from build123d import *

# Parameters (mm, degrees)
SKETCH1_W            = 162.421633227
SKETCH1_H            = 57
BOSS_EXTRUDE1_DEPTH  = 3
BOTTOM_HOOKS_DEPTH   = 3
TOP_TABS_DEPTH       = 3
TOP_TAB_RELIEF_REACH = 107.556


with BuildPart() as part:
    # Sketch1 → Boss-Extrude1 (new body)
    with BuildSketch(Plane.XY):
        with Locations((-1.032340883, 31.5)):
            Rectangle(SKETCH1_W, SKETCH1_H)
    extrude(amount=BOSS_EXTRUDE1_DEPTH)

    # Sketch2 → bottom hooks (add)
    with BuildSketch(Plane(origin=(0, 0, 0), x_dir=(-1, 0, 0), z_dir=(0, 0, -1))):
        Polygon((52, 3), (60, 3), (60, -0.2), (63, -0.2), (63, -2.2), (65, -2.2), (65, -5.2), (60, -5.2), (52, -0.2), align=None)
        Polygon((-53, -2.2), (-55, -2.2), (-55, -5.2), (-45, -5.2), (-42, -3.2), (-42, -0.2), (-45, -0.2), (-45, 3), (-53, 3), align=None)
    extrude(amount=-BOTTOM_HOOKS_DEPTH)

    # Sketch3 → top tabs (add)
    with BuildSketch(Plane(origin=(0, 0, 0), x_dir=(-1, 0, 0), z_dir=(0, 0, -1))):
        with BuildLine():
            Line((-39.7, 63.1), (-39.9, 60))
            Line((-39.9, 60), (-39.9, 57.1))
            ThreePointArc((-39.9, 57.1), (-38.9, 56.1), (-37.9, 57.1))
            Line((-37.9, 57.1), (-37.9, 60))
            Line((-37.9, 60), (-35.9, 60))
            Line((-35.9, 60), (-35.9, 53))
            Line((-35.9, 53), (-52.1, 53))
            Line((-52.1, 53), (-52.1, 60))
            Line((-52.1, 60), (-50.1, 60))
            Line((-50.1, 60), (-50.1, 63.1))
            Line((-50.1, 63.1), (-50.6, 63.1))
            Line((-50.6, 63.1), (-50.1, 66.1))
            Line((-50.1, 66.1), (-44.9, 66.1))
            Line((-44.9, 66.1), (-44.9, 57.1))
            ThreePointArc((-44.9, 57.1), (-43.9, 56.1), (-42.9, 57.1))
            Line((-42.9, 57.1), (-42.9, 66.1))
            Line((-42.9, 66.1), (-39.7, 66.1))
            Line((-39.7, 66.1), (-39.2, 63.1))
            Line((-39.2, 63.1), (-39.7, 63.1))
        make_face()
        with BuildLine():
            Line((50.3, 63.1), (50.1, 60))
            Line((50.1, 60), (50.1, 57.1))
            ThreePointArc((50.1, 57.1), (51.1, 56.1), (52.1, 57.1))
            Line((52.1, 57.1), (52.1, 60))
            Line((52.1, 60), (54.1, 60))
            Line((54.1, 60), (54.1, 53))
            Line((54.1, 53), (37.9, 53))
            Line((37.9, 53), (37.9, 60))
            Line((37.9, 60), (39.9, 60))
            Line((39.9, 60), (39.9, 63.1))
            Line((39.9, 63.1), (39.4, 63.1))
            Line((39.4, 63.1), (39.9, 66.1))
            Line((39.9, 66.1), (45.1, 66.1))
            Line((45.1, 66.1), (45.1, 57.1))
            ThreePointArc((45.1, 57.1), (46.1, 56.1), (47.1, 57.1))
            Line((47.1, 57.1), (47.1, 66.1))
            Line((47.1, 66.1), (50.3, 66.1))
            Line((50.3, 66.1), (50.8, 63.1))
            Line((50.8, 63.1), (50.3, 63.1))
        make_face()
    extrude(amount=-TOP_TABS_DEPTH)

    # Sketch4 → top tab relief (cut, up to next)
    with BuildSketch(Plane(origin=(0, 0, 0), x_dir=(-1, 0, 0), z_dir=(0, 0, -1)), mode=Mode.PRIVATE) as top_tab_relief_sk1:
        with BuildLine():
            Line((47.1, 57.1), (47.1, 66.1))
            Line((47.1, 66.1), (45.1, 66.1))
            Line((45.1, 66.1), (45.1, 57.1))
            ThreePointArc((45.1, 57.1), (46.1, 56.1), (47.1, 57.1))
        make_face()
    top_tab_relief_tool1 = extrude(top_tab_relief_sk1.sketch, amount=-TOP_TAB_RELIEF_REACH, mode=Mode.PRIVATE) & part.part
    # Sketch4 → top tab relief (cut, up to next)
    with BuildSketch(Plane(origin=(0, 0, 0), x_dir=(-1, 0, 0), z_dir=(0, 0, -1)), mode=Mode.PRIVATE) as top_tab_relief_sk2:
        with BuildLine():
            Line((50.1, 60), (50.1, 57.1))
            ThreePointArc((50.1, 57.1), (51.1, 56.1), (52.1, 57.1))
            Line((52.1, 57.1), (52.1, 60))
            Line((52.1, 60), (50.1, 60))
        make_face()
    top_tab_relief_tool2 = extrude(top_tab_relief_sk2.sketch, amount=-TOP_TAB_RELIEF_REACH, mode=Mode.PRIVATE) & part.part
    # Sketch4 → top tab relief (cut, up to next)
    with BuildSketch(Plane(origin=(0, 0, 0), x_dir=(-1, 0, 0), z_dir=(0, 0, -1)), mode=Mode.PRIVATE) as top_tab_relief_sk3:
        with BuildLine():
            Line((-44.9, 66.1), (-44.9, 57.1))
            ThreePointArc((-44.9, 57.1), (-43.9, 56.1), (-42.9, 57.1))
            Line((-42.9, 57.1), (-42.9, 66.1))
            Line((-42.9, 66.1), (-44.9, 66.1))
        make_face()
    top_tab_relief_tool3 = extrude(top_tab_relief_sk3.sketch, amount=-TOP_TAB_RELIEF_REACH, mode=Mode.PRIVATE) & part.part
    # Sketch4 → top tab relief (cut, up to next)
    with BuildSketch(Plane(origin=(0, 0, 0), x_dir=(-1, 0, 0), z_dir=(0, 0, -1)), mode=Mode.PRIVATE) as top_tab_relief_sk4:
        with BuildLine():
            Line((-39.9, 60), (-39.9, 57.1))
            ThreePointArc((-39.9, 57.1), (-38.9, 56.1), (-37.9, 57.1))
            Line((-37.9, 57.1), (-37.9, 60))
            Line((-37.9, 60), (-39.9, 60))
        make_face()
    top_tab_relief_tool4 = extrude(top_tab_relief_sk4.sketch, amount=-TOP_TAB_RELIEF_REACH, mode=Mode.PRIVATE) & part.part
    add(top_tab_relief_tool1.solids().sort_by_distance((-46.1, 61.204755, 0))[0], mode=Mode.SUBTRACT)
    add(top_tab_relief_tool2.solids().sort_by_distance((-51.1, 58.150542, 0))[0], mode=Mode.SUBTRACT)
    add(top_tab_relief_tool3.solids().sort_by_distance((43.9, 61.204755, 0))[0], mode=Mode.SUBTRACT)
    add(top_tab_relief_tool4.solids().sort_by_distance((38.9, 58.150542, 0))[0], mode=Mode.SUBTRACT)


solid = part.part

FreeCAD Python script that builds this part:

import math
import FreeCAD as App
import Part
import Sketcher
Q = App.Units.Quantity


def add_polygon(sketch, points):
    """Adds a closed chain of lines whose ends are joined by coincident constraints."""
    first, n = sketch.GeometryCount, len(points)
    for a, b in zip(points, points[1:] + points[:1]):
        sketch.addGeometry(Part.LineSegment(App.Vector(*a, 0), App.Vector(*b, 0)), False)
    for i in range(n):
        sketch.addConstraint(Sketcher.Constraint("Coincident", first + i, 2, first + (i + 1) % n, 1))

doc = App.newDocument("Part")
body = doc.addObject("PartDesign::Body", "Body")

sketch1 = body.newObject("Sketcher::SketchObject", "Sketch")
sketch1.AttachmentSupport = (doc.getObject("XY_Plane"), [""])
sketch1.MapMode = "FlatFace"
add_polygon(sketch1, [(-82, 60), (-82, 3), (80, 3), (80, 60)])
sketch1.addConstraint([
    Sketcher.Constraint("Vertical", 0),
    Sketcher.Constraint("Horizontal", 1),
    Sketcher.Constraint("Vertical", 2),
    Sketcher.Constraint("Horizontal", 3),
    Sketcher.Constraint("DistanceY", 0, 2, 0, 1, Q("57 mm")),
    Sketcher.Constraint("DistanceY", -1, 1, 0, 2, Q("3 mm")),
    Sketcher.Constraint("DistanceX", 1, 1, 1, 2, Q("162.421633 mm")),
    Sketcher.Constraint("DistanceX", 0, 2, -1, 1, Q("82.243157 mm")),
])
pad1 = body.newObject("PartDesign::Pad", "Pad")
pad1.Profile = sketch1
pad1.Length = 3

sketch2 = body.newObject("Sketcher::SketchObject", "Sketch001")
sketch2.AttachmentSupport = (doc.getObject("XY_Plane"), [""])
sketch2.MapMode = "FlatFace"
add_polygon(sketch2, [(-60, 3), (-52, 3), (-52, -0.2), (-60, -5.2), (-65, -5.2), (-65, -2.2), (-63, -2.2), (-63, -0.2), (-60, -0.2)])
add_polygon(sketch2, [(53, -2.2), (55, -2.2), (55, -5.2), (45, -5.2), (42, -3.2), (42, -0.2), (45, -0.2), (45, 3), (53, 3)])
sketch2.addConstraint([
    Sketcher.Constraint("Horizontal", 0),
    Sketcher.Constraint("Vertical", 1),
    Sketcher.Constraint("Horizontal", 3),
    Sketcher.Constraint("Vertical", 4),
    Sketcher.Constraint("Horizontal", 5),
    Sketcher.Constraint("Vertical", 6),
    Sketcher.Constraint("Horizontal", 7),
    Sketcher.Constraint("Vertical", 8),
    Sketcher.Constraint("Horizontal", 9),
    Sketcher.Constraint("Vertical", 10),
    Sketcher.Constraint("Horizontal", 11),
    Sketcher.Constraint("Vertical", 13),
    Sketcher.Constraint("Horizontal", 14),
    Sketcher.Constraint("Vertical", 15),
    Sketcher.Constraint("Horizontal", 16),
    Sketcher.Constraint("Vertical", 17),
    Sketcher.Constraint("Horizontal", 1, 2, 6, 2),
    Sketcher.Constraint("Horizontal", 5, 2, 9, 2),
    Sketcher.Constraint("Horizontal", 3, 2, 10, 2),
    Sketcher.Constraint("Horizontal", 7, 2, 13, 2),
    Sketcher.Constraint("Horizontal", 8, 2, 15, 2),
    Sketcher.Constraint("Vertical", 2, 2, 7, 2),
    Sketcher.Constraint("Vertical", 11, 2, 14, 2),
    Sketcher.Constraint("Equal", 5, 9),
    Sketcher.Constraint("Equal", 7, 14),
    Sketcher.Constraint("Equal", 0, 16),
    Sketcher.Constraint("Equal", 14, 4),
    Sketcher.Constraint("Equal", 9, 6),
    Sketcher.Constraint("Equal", 10, 13),
    Sketcher.Constraint("DistanceX", 0, 1, 0, 2, Q("8 mm")),
    Sketcher.Constraint("DistanceX", 3, 2, 3, 1, Q("5 mm")),
    Sketcher.Constraint("DistanceX", 5, 1, 5, 2, Q("2 mm")),
    Sketcher.Constraint("DistanceY", 1, 2, 1, 1, Q("3.2 mm")),
    Sketcher.Constraint("DistanceX", 0, 2, -1, 1, Q("52 mm")),
    Sketcher.Constraint("DistanceY", -1, 1, 0, 2, Q("3 mm")),
    Sketcher.Constraint("DistanceX", -1, 1, 9, 2, Q("55 mm")),
])
pad2 = body.newObject("PartDesign::Pad", "Pad001")
pad2.Profile = sketch2
pad2.Length = 3

sketch3 = body.newObject("Sketcher::SketchObject", "Sketch002")
sketch3.AttachmentSupport = (doc.getObject("XY_Plane"), [""])
sketch3.MapMode = "FlatFace"
sketch3.addGeometry([
    Part.LineSegment(App.Vector(39.9, 60, 0), App.Vector(39.7, 63.1, 0)),
    Part.LineSegment(App.Vector(39.7, 63.1, 0), App.Vector(39.2, 63.1, 0)),
    Part.LineSegment(App.Vector(39.2, 63.1, 0), App.Vector(39.7, 66.1, 0)),
    Part.LineSegment(App.Vector(39.7, 66.1, 0), App.Vector(42.9, 66.1, 0)),
    Part.LineSegment(App.Vector(42.9, 66.1, 0), App.Vector(42.9, 57.1, 0)),
    Part.ArcOfCircle(Part.Circle(App.Vector(43.9, 57.1, 0), App.Vector(0, 0, 1), 1), math.radians(180), math.radians(360)),
    Part.LineSegment(App.Vector(44.9, 57.1, 0), App.Vector(44.9, 66.1, 0)),
    Part.LineSegment(App.Vector(44.9, 66.1, 0), App.Vector(50.1, 66.1, 0)),
    Part.LineSegment(App.Vector(50.1, 66.1, 0), App.Vector(50.6, 63.1, 0)),
    Part.LineSegment(App.Vector(50.6, 63.1, 0), App.Vector(50.1, 63.1, 0)),
    Part.LineSegment(App.Vector(50.1, 63.1, 0), App.Vector(50.1, 60, 0)),
    Part.LineSegment(App.Vector(50.1, 60, 0), App.Vector(52.1, 60, 0)),
    Part.LineSegment(App.Vector(52.1, 60, 0), App.Vector(52.1, 53, 0)),
    Part.LineSegment(App.Vector(52.1, 53, 0), App.Vector(35.9, 53, 0)),
    Part.LineSegment(App.Vector(35.9, 53, 0), App.Vector(35.9, 60, 0)),
    Part.LineSegment(App.Vector(35.9, 60, 0), App.Vector(37.9, 60, 0)),
    Part.LineSegment(App.Vector(37.9, 60, 0), App.Vector(37.9, 57.1, 0)),
    Part.ArcOfCircle(Part.Circle(App.Vector(38.9, 57.1, 0), App.Vector(0, 0, 1), 1), math.radians(180), math.radians(360)),
    Part.LineSegment(App.Vector(39.9, 57.1, 0), App.Vector(39.9, 60, 0)),
    Part.LineSegment(App.Vector(-50.1, 60, 0), App.Vector(-50.3, 63.1, 0)),
    Part.LineSegment(App.Vector(-50.3, 63.1, 0), App.Vector(-50.8, 63.1, 0)),
    Part.LineSegment(App.Vector(-50.8, 63.1, 0), App.Vector(-50.3, 66.1, 0)),
    Part.LineSegment(App.Vector(-50.3, 66.1, 0), App.Vector(-47.1, 66.1, 0)),
    Part.LineSegment(App.Vector(-47.1, 66.1, 0), App.Vector(-47.1, 57.1, 0)),
    Part.ArcOfCircle(Part.Circle(App.Vector(-46.1, 57.1, 0), App.Vector(0, 0, 1), 1), math.radians(180), math.radians(360)),
    Part.LineSegment(App.Vector(-45.1, 57.1, 0), App.Vector(-45.1, 66.1, 0)),
    Part.LineSegment(App.Vector(-45.1, 66.1, 0), App.Vector(-39.9, 66.1, 0)),
    Part.LineSegment(App.Vector(-39.9, 66.1, 0), App.Vector(-39.4, 63.1, 0)),
    Part.LineSegment(App.Vector(-39.4, 63.1, 0), App.Vector(-39.9, 63.1, 0)),
    Part.LineSegment(App.Vector(-39.9, 63.1, 0), App.Vector(-39.9, 60, 0)),
    Part.LineSegment(App.Vector(-39.9, 60, 0), App.Vector(-37.9, 60, 0)),
    Part.LineSegment(App.Vector(-37.9, 60, 0), App.Vector(-37.9, 53, 0)),
    Part.LineSegment(App.Vector(-37.9, 53, 0), App.Vector(-54.1, 53, 0)),
    Part.LineSegment(App.Vector(-54.1, 53, 0), App.Vector(-54.1, 60, 0)),
    Part.LineSegment(App.Vector(-54.1, 60, 0), App.Vector(-52.1, 60, 0)),
    Part.LineSegment(App.Vector(-52.1, 60, 0), App.Vector(-52.1, 57.1, 0)),
    Part.ArcOfCircle(Part.Circle(App.Vector(-51.1, 57.1, 0), App.Vector(0, 0, 1), 1), math.radians(180), math.radians(360)),
    Part.LineSegment(App.Vector(-50.1, 57.1, 0), App.Vector(-50.1, 60, 0)),
], False)
sketch3.addConstraint([
    Sketcher.Constraint("Coincident", 0, 2, 1, 1),
    Sketcher.Constraint("Coincident", 1, 2, 2, 1),
    Sketcher.Constraint("Coincident", 2, 2, 3, 1),
    Sketcher.Constraint("Coincident", 3, 2, 4, 1),
    Sketcher.Constraint("Tangent", 4, 2, 5, 1),
    Sketcher.Constraint("Tangent", 5, 2, 6, 1),
    Sketcher.Constraint("Coincident", 6, 2, 7, 1),
    Sketcher.Constraint("Coincident", 7, 2, 8, 1),
    Sketcher.Constraint("Coincident", 8, 2, 9, 1),
    Sketcher.Constraint("Coincident", 9, 2, 10, 1),
    Sketcher.Constraint("Coincident", 10, 2, 11, 1),
    Sketcher.Constraint("Coincident", 11, 2, 12, 1),
    Sketcher.Constraint("Coincident", 12, 2, 13, 1),
    Sketcher.Constraint("Coincident", 13, 2, 14, 1),
    Sketcher.Constraint("Coincident", 14, 2, 15, 1),
    Sketcher.Constraint("Coincident", 15, 2, 16, 1),
    Sketcher.Constraint("Tangent", 16, 2, 17, 1),
    Sketcher.Constraint("Tangent", 17, 2, 18, 1),
    Sketcher.Constraint("Coincident", 18, 2, 0, 1),
    Sketcher.Constraint("Coincident", 19, 2, 20, 1),
    Sketcher.Constraint("Coincident", 20, 2, 21, 1),
    Sketcher.Constraint("Coincident", 21, 2, 22, 1),
    Sketcher.Constraint("Coincident", 22, 2, 23, 1),
    Sketcher.Constraint("Tangent", 23, 2, 24, 1),
    Sketcher.Constraint("Tangent", 24, 2, 25, 1),
    Sketcher.Constraint("Coincident", 25, 2, 26, 1),
    Sketcher.Constraint("Coincident", 26, 2, 27, 1),
    Sketcher.Constraint("Coincident", 27, 2, 28, 1),
    Sketcher.Constraint("Coincident", 28, 2, 29, 1),
    Sketcher.Constraint("Coincident", 29, 2, 30, 1),
    Sketcher.Constraint("Coincident", 30, 2, 31, 1),
    Sketcher.Constraint("Coincident", 31, 2, 32, 1),
    Sketcher.Constraint("Coincident", 32, 2, 33, 1),
    Sketcher.Constraint("Coincident", 33, 2, 34, 1),
    Sketcher.Constraint("Coincident", 34, 2, 35, 1),
    Sketcher.Constraint("Tangent", 35, 2, 36, 1),
    Sketcher.Constraint("Tangent", 36, 2, 37, 1),
    Sketcher.Constraint("Coincident", 37, 2, 19, 1),
    Sketcher.Constraint("Horizontal", 1),
    Sketcher.Constraint("Horizontal", 3),
    Sketcher.Constraint("Vertical", 4),
    Sketcher.Constraint("Vertical", 6),
    Sketcher.Constraint("Horizontal", 7),
    Sketcher.Constraint("Horizontal", 9),
    Sketcher.Constraint("Vertical", 10),
    Sketcher.Constraint("Horizontal", 11),
    Sketcher.Constraint("Vertical", 12),
    Sketcher.Constraint("Horizontal", 13),
    Sketcher.Constraint("Vertical", 14),
    Sketcher.Constraint("Horizontal", 15),
    Sketcher.Constraint("Vertical", 16),
    Sketcher.Constraint("Vertical", 18),
    Sketcher.Constraint("Horizontal", 20),
    Sketcher.Constraint("Horizontal", 22),
    Sketcher.Constraint("Vertical", 23),
    Sketcher.Constraint("Vertical", 25),
    Sketcher.Constraint("Horizontal", 26),
    Sketcher.Constraint("Horizontal", 28),
    Sketcher.Constraint("Vertical", 29),
    Sketcher.Constraint("Horizontal", 30),
    Sketcher.Constraint("Vertical", 31),
    Sketcher.Constraint("Horizontal", 32),
    Sketcher.Constraint("Vertical", 33),
    Sketcher.Constraint("Horizontal", 34),
    Sketcher.Constraint("Vertical", 35),
    Sketcher.Constraint("Vertical", 37),
    Sketcher.Constraint("Equal", 5, 17),
    Sketcher.Constraint("Equal", 17, 24),
    Sketcher.Constraint("Equal", 24, 36),
    Sketcher.Constraint("Symmetric", 18, 2, 29, 2, -2),
    Sketcher.Constraint("Symmetric", 15, 2, 30, 2, -2),
    Sketcher.Constraint("Symmetric", 11, 2, 34, 2, -2),
    Sketcher.Constraint("Symmetric", 10, 2, 37, 2, -2),
    Sketcher.Constraint("Parallel", 0, 19),
    Sketcher.Constraint("Parallel", 2, 21),
    Sketcher.Constraint("Parallel", 8, 27),
    Sketcher.Constraint("Horizontal", 5, 3, 17, 3),
    Sketcher.Constraint("Horizontal", 17, 3, 24, 3),
    Sketcher.Constraint("Horizontal", 24, 3, 36, 3),
    Sketcher.Constraint("Horizontal", 3, 2, 6, 2),
    Sketcher.Constraint("Horizontal", 1, 2, 8, 2),
    Sketcher.Constraint("Horizontal", 11, 2, 14, 2),
    Sketcher.Constraint("Horizontal", 9, 2, 19, 2),
    Sketcher.Constraint("Horizontal", 7, 2, 21, 2),
    Sketcher.Constraint("Horizontal", 22, 2, 25, 2),
    Sketcher.Constraint("Horizontal", 20, 2, 27, 2),
    Sketcher.Constraint("Horizontal", 13, 2, 31, 2),
    Sketcher.Constraint("Vertical", 0, 2, 2, 2),
    Sketcher.Constraint("Vertical", 7, 2, 9, 2),
    Sketcher.Constraint("Vertical", 19, 2, 21, 2),
    Sketcher.Constraint("Vertical", 26, 2, 28, 2),
    Sketcher.Constraint("Equal", 1, 9),
    Sketcher.Constraint("Equal", 11, 15),
    Sketcher.Constraint("Equal", 3, 22),
    Sketcher.Constraint("Equal", 13, 32),
    Sketcher.Constraint("Radius", 5, Q("1 mm")),
    Sketcher.Constraint("DistanceY", 4, 2, 4, 1, Q("9 mm")),
    Sketcher.Constraint("DistanceY", 12, 2, 12, 1, Q("7 mm")),
    Sketcher.Constraint("DistanceX", 1, 2, 1, 1, Q("0.5 mm")),
    Sketcher.Constraint("DistanceX", 3, 1, 3, 2, Q("3.2 mm")),
    Sketcher.Constraint("DistanceX", 7, 1, 7, 2, Q("5.2 mm")),
    Sketcher.Constraint("DistanceX", 13, 2, 13, 1, Q("16.2 mm")),
    Sketcher.Constraint("DistanceY", 10, 2, 10, 1, Q("3.1 mm")),
    Sketcher.Constraint("DistanceY", 16, 2, 16, 1, Q("2.9 mm")),
    Sketcher.Constraint("DistanceY", -1, 1, 10, 2, Q("60 mm")),
    Sketcher.Constraint("DistanceX", 24, 3, 17, 3, Q("85 mm")),
])
pad3 = body.newObject("PartDesign::Pad", "Pad002")
pad3.Profile = sketch3
pad3.Length = 3

sketch4 = body.newObject("Sketcher::SketchObject", "Sketch003")
sketch4.AttachmentSupport = (doc.getObject("XY_Plane"), [""])
sketch4.MapMode = "FlatFace"
sketch4.addGeometry([
    Part.LineSegment(App.Vector(-47.1, 57.1, 0), App.Vector(-47.1, 66.1, 0)),
    Part.LineSegment(App.Vector(-47.1, 66.1, 0), App.Vector(-45.1, 66.1, 0)),
    Part.LineSegment(App.Vector(-45.1, 66.1, 0), App.Vector(-45.1, 57.1, 0)),
    Part.ArcOfCircle(Part.Circle(App.Vector(-46.1, 57.1, 0), App.Vector(0, 0, 1), 1), math.radians(180), math.radians(360)),
], False)
sketch4.addConstraint([
    Sketcher.Constraint("Coincident", 0, 2, 1, 1),
    Sketcher.Constraint("Coincident", 1, 2, 2, 1),
    Sketcher.Constraint("Tangent", 2, 2, 3, 2),
    Sketcher.Constraint("Tangent", 3, 1, 0, 1),
    Sketcher.Constraint("Vertical", 0),
    Sketcher.Constraint("Horizontal", 1),
    Sketcher.Constraint("Vertical", 2),
    Sketcher.Constraint("Radius", 3, Q("1 mm")),
    Sketcher.Constraint("DistanceY", 0, 1, 0, 2, Q("9 mm")),
    Sketcher.Constraint("DistanceX", 3, 3, -1, 1, Q("46.1 mm")),
    Sketcher.Constraint("DistanceY", -1, 1, 3, 3, Q("57.1 mm")),
])
pocket1 = body.newObject("PartDesign::Pocket", "Pocket")
pocket1.Profile = sketch4
pocket1.Length = 3
pocket1.Reversed = True

sketch5 = body.newObject("Sketcher::SketchObject", "Sketch004")
sketch5.AttachmentSupport = (doc.getObject("XY_Plane"), [""])
sketch5.MapMode = "FlatFace"
sketch5.addGeometry([
    Part.LineSegment(App.Vector(-50.1, 60, 0), App.Vector(-50.1, 57.1, 0)),
    Part.ArcOfCircle(Part.Circle(App.Vector(-51.1, 57.1, 0), App.Vector(0, 0, 1), 1), math.radians(180), math.radians(360)),
    Part.LineSegment(App.Vector(-52.1, 57.1, 0), App.Vector(-52.1, 60, 0)),
    Part.LineSegment(App.Vector(-52.1, 60, 0), App.Vector(-50.1, 60, 0)),
], False)
sketch5.addConstraint([
    Sketcher.Constraint("Tangent", 0, 2, 1, 2),
    Sketcher.Constraint("Tangent", 1, 1, 2, 1),
    Sketcher.Constraint("Coincident", 2, 2, 3, 1),
    Sketcher.Constraint("Coincident", 3, 2, 0, 1),
    Sketcher.Constraint("Vertical", 0),
    Sketcher.Constraint("Vertical", 2),
    Sketcher.Constraint("Horizontal", 3),
    Sketcher.Constraint("Radius", 1, Q("1 mm")),
    Sketcher.Constraint("DistanceY", 0, 2, 0, 1, Q("2.9 mm")),
    Sketcher.Constraint("DistanceY", -1, 1, 2, 2, Q("60 mm")),
    Sketcher.Constraint("DistanceX", 1, 3, -1, 1, Q("51.1 mm")),
])
pocket2 = body.newObject("PartDesign::Pocket", "Pocket001")
pocket2.Profile = sketch5
pocket2.Type = "UpToFirst"
pocket2.Reversed = True

sketch6 = body.newObject("Sketcher::SketchObject", "Sketch005")
sketch6.AttachmentSupport = (doc.getObject("XY_Plane"), [""])
sketch6.MapMode = "FlatFace"
sketch6.addGeometry([
    Part.LineSegment(App.Vector(44.9, 66.1, 0), App.Vector(44.9, 57.1, 0)),
    Part.ArcOfCircle(Part.Circle(App.Vector(43.9, 57.1, 0), App.Vector(0, 0, 1), 1), math.radians(180), math.radians(360)),
    Part.LineSegment(App.Vector(42.9, 57.1, 0), App.Vector(42.9, 66.1, 0)),
    Part.LineSegment(App.Vector(42.9, 66.1, 0), App.Vector(44.9, 66.1, 0)),
], False)
sketch6.addConstraint([
    Sketcher.Constraint("Tangent", 0, 2, 1, 2),
    Sketcher.Constraint("Tangent", 1, 1, 2, 1),
    Sketcher.Constraint("Coincident", 2, 2, 3, 1),
    Sketcher.Constraint("Coincident", 3, 2, 0, 1),
    Sketcher.Constraint("Vertical", 0),
    Sketcher.Constraint("Vertical", 2),
    Sketcher.Constraint("Horizontal", 3),
    Sketcher.Constraint("Radius", 1, Q("1 mm")),
    Sketcher.Constraint("DistanceY", 0, 2, 0, 1, Q("9 mm")),
    Sketcher.Constraint("DistanceX", -1, 1, 1, 3, Q("43.9 mm")),
    Sketcher.Constraint("DistanceY", -1, 1, 1, 3, Q("57.1 mm")),
])
pocket3 = body.newObject("PartDesign::Pocket", "Pocket002")
pocket3.Profile = sketch6
pocket3.Length = 3
pocket3.Reversed = True

sketch7 = body.newObject("Sketcher::SketchObject", "Sketch006")
sketch7.AttachmentSupport = (doc.getObject("XY_Plane"), [""])
sketch7.MapMode = "FlatFace"
sketch7.addGeometry([
    Part.LineSegment(App.Vector(39.9, 60, 0), App.Vector(39.9, 57.1, 0)),
    Part.ArcOfCircle(Part.Circle(App.Vector(38.9, 57.1, 0), App.Vector(0, 0, 1), 1), math.radians(180), math.radians(360)),
    Part.LineSegment(App.Vector(37.9, 57.1, 0), App.Vector(37.9, 60, 0)),
    Part.LineSegment(App.Vector(37.9, 60, 0), App.Vector(39.9, 60, 0)),
], False)
sketch7.addConstraint([
    Sketcher.Constraint("Tangent", 0, 2, 1, 2),
    Sketcher.Constraint("Tangent", 1, 1, 2, 1),
    Sketcher.Constraint("Coincident", 2, 2, 3, 1),
    Sketcher.Constraint("Coincident", 3, 2, 0, 1),
    Sketcher.Constraint("Vertical", 0),
    Sketcher.Constraint("Vertical", 2),
    Sketcher.Constraint("Horizontal", 3),
    Sketcher.Constraint("Radius", 1, Q("1 mm")),
    Sketcher.Constraint("DistanceY", 0, 2, 0, 1, Q("2.9 mm")),
    Sketcher.Constraint("DistanceY", -1, 1, 2, 2, Q("60 mm")),
    Sketcher.Constraint("DistanceX", -1, 1, 1, 3, Q("38.9 mm")),
])
pocket4 = body.newObject("PartDesign::Pocket", "Pocket003")
pocket4.Profile = sketch7
pocket4.Type = "UpToFirst"
pocket4.Reversed = True

doc.recompute()
